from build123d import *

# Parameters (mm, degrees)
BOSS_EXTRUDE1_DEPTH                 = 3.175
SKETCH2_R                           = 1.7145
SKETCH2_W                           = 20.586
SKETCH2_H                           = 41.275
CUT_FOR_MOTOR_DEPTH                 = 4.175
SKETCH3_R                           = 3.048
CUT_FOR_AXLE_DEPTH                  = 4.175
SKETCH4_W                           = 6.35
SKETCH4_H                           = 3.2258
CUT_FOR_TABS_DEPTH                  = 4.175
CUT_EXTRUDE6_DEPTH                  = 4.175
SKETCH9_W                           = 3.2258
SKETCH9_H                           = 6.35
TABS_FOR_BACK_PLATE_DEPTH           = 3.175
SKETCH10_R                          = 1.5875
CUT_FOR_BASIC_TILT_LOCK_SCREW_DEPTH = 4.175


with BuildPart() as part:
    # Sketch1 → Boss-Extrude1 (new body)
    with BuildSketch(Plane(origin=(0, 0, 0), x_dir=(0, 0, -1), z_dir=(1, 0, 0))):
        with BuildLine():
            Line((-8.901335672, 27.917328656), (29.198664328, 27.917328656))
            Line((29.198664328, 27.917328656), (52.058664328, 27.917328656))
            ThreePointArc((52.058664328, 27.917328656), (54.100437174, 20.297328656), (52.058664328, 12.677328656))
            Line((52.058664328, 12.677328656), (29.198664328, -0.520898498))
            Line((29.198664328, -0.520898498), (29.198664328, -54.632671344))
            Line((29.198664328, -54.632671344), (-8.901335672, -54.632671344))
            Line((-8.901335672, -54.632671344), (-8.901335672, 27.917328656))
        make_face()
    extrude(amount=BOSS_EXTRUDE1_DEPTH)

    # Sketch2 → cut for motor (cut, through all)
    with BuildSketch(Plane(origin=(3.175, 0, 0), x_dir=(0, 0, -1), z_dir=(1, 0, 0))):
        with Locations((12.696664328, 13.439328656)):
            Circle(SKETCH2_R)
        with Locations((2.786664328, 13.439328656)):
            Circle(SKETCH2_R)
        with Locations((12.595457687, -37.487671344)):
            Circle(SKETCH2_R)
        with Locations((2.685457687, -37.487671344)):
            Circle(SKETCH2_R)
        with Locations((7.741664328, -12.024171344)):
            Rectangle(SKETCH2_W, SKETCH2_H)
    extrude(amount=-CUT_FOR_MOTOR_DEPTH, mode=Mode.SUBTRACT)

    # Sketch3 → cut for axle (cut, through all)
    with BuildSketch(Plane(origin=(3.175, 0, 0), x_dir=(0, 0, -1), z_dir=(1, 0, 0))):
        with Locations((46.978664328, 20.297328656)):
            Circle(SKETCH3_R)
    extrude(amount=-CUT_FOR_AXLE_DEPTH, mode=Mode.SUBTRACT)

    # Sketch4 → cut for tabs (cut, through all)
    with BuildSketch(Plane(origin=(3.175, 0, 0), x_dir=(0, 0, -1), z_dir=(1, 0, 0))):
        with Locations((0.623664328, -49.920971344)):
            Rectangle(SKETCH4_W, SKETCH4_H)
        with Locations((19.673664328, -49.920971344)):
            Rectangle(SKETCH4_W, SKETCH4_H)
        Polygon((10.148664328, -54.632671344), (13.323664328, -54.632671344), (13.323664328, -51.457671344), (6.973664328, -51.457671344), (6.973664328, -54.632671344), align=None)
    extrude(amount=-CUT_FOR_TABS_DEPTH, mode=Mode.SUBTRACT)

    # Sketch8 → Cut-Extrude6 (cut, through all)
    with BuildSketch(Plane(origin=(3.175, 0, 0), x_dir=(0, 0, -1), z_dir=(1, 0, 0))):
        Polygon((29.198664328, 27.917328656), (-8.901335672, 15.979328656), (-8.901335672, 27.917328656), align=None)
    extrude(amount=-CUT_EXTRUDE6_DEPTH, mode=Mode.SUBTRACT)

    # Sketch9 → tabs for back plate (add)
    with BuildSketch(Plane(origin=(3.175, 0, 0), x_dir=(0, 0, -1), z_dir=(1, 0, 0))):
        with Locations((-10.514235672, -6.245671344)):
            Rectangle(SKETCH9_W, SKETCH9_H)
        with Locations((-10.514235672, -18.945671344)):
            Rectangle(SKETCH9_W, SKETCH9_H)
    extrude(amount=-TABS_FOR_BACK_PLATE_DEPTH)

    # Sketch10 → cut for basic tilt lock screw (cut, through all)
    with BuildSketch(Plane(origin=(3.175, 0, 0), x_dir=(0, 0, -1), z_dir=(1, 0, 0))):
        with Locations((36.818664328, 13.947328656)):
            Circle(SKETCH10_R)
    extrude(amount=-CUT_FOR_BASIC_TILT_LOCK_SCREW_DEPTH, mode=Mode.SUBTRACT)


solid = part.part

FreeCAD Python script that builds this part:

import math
import FreeCAD as App
import Part
import Sketcher
Q = App.Units.Quantity

doc = App.newDocument("Part")
body = doc.addObject("PartDesign::Body", "Body")

sketch1 = doc.addObject("Sketcher::SketchObject", "Sketch")
body.addObject(sketch1)
sketch1.AttachmentSupport = (doc.YZ_Plane, [""])
sketch1.MapMode = "FlatFace"
sketch1.addGeometry([
    Part.LineSegment(App.Vector(28, -52, 0), App.Vector(28, 9, 0)),
    Part.LineSegment(App.Vector(28, 9, 0), App.Vector(-55, 9, 0)),
    Part.LineSegment(App.Vector(-55, 9, 0), App.Vector(-55, -29, 0)),
    Part.LineSegment(App.Vector(-55, -29, 0), App.Vector(-1, -29, 0)),
    Part.LineSegment(App.Vector(-1, -29, 0), App.Vector(13, -52, 0)),
    Part.ArcOfCircle(Part.Circle(App.Vector(20, -39, 0), App.Vector(0, 0, 1), 15), math.radians(-120), math.radians(-60)),
], False)
sketch1.addConstraint([
    Sketcher.Constraint("Coincident", 0, 2, 1, 1),
    Sketcher.Constraint("Coincident", 1, 2, 2, 1),
    Sketcher.Constraint("Coincident", 2, 2, 3, 1),
    Sketcher.Constraint("Coincident", 3, 2, 4, 1),
    Sketcher.Constraint("Coincident", 4, 2, 5, 1),
    Sketcher.Constraint("Coincident", 5, 2, 0, 1),
    Sketcher.Constraint("Vertical", 0),
    Sketcher.Constraint("Horizontal", 1),
    Sketcher.Constraint("Vertical", 2),
    Sketcher.Constraint("Horizontal", 3),
    Sketcher.Constraint("Horizontal", 4, 2, 5, 2),
    Sketcher.Constraint("Radius", 5, Q("0.6 in")),
    Sketcher.Constraint("DistanceY", 0, 1, 0, 2, Q("2.4 in")),
    Sketcher.Constraint("DistanceY", 2, 2, 2, 1, Q("1.5 in")),
    Sketcher.Constraint("Angle", 4, Q("-60 deg")),
    Sketcher.Constraint("DistanceX", 1, 2, 1, 1, Q("3.25 in")),
    Sketcher.Constraint("DistanceX", 5, 3, 0, 2, Q("0.3 in")),
    Sketcher.Constraint("DistanceX", 3, 2, -1, 1, Q("0.520898 mm")),
    Sketcher.Constraint("DistanceY", 5, 3, -1, 1, Q("38.860437 mm")),
])
pad1 = doc.addObject("PartDesign::Pad", "Pad")
body.addObject(pad1)
pad1.Profile = sketch1
pad1.Length = Q("0.125 in")

sketch2 = doc.addObject("Sketcher::SketchObject", "Sketch001")
body.addObject(sketch2)
sketch2.AttachmentSupport = (doc.YZ_Plane, [""])
sketch2.MapMode = "FlatFace"
sketch2.AttachmentOffset = App.Placement(App.Vector(0, 0, 0.125 * 25.4), App.Rotation())
sketch2.addGeometry([
    Part.Circle(App.Vector(13.4, -12.7, 0), App.Vector(0, 0, 1), 1.7),
    Part.Circle(App.Vector(13.4, -2.8, 0), App.Vector(0, 0, 1), 1.7),
    Part.Circle(App.Vector(-37.5, -12.6, 0), App.Vector(0, 0, 1), 1.7),
    Part.Circle(App.Vector(-37.5, -2.7, 0), App.Vector(0, 0, 1), 1.7),
    Part.LineSegment(App.Vector(8.6, 2.6, 0), App.Vector(-32.7, 2.6, 0)),
    Part.LineSegment(App.Vector(-32.7, 2.6, 0), App.Vector(-32.7, -18, 0)),
    Part.LineSegment(App.Vector(-32.7, -18, 0), App.Vector(8.6, -18, 0)),
    Part.LineSegment(App.Vector(8.6, -18, 0), App.Vector(8.6, 2.6, 0)),
], False)
sketch2.addConstraint([
    Sketcher.Constraint("Coincident", 4, 2, 5, 1),
    Sketcher.Constraint("Coincident", 5, 2, 6, 1),
    Sketcher.Constraint("Coincident", 6, 2, 7, 1),
    Sketcher.Constraint("Coincident", 7, 2, 4, 1),
    Sketcher.Constraint("Horizontal", 4),
    Sketcher.Constraint("Vertical", 5),
    Sketcher.Constraint("Horizontal", 6),
    Sketcher.Constraint("Vertical", 7),
    Sketcher.Constraint("Equal", 0, 1),
    Sketcher.Constraint("Equal", 1, 2),
    Sketcher.Constraint("Equal", 2, 3),
    Sketcher.Constraint("Vertical", 0, 3, 1, 3),
    Sketcher.Constraint("Vertical", 2, 3, 3, 3),
    Sketcher.Constraint("Diameter", 0, Q("0.135 in")),
    Sketcher.Constraint("DistanceX", 4, 2, 4, 1, Q("1.625 in")),
    Sketcher.Constraint("DistanceX", 3, 3, 4, 2, Q("0.19 in")),
    Sketcher.Constraint("DistanceX", 6, 2, 0, 3, Q("0.19 in")),
    Sketcher.Constraint("DistanceY", 5, 2, 5, 1, Q("20.586 mm")),
    Sketcher.Constraint("DistanceY", 0, 3, 1, 3, Q("9.91 mm")),
    Sketcher.Constraint("DistanceY", 2, 3, 3, 3, Q("9.91 mm")),
    Sketcher.Constraint("DistanceY", 1, 3, 4, 2, Q("5.338 mm")),
    Sketcher.Constraint("DistanceX", -1, 1, 0, 3, Q("13.439329 mm")),
    Sketcher.Constraint("DistanceY", 0, 3, -1, 1, Q("12.696664 mm")),
    Sketcher.Constraint("DistanceY", 2, 3, -1, 1, Q("12.595458 mm")),
])
pocket1 = doc.addObject("PartDesign::Pocket", "Pocket")
body.addObject(pocket1)
pocket1.Profile = sketch2
pocket1.Type = "ThroughAll"

sketch3 = doc.addObject("Sketcher::SketchObject", "Sketch002")
body.addObject(sketch3)
sketch3.AttachmentSupport = (doc.YZ_Plane, [""])
sketch3.MapMode = "FlatFace"
sketch3.AttachmentOffset = App.Placement(App.Vector(0, 0, 0.125 * 25.4), App.Rotation())
sketch3.addGeometry(Part.Circle(App.Vector(20.3, -47, 0), App.Vector(0, 0, 1), 3), False)
sketch3.addConstraint([
    Sketcher.Constraint("Diameter", 0, Q("0.24 in")),
    Sketcher.Constraint("DistanceX", -1, 1, 0, 3, Q("20.297329 mm")),
    Sketcher.Constraint("DistanceY", 0, 3, -1, 1, Q("46.978664 mm")),
])
pocket2 = doc.addObject("PartDesign::Pocket", "Pocket001")
body.addObject(pocket2)
pocket2.Profile = sketch3
pocket2.Type = "ThroughAll"

sketch4 = doc.addObject("Sketcher::SketchObject", "Sketch003")
body.addObject(sketch4)
sketch4.AttachmentSupport = (doc.YZ_Plane, [""])
sketch4.MapMode = "FlatFace"
sketch4.AttachmentOffset = App.Placement(App.Vector(0, 0, 0.125 * 25.4), App.Rotation())
sketch4.addGeometry([
    Part.LineSegment(App.Vector(-48.3, 2.6, 0), App.Vector(-51.5, 2.6, 0)),
    Part.LineSegment(App.Vector(-51.5, 2.6, 0), App.Vector(-51.5, -3.8, 0)),
    Part.LineSegment(App.Vector(-51.5, -3.8, 0), App.Vector(-48.3, -3.8, 0)),
    Part.LineSegment(App.Vector(-48.3, -3.8, 0), App.Vector(-48.3, 2.6, 0)),
    Part.LineSegment(App.Vector(-48.3, -16.5, 0), App.Vector(-51.5, -16.5, 0)),
    Part.LineSegment(App.Vector(-51.5, -16.5, 0), App.Vector(-51.5, -22.8, 0)),
    Part.LineSegment(App.Vector(-51.5, -22.8, 0), App.Vector(-48.3, -22.8, 0)),
    Part.LineSegment(App.Vector(-48.3, -22.8, 0), App.Vector(-48.3, -16.5, 0)),
    Part.LineSegment(App.Vector(-54.6, -13.3, 0), App.Vector(-51.5, -13.3, 0)),
    Part.LineSegment(App.Vector(-51.5, -13.3, 0), App.Vector(-51.5, -7, 0)),
    Part.LineSegment(App.Vector(-51.5, -7, 0), App.Vector(-54.6, -7, 0)),
    Part.LineSegment(App.Vector(-54.6, -7, 0), App.Vector(-54.6, -13.3, 0)),
], False)
sketch4.addConstraint([
    Sketcher.Constraint("Coincident", 0, 2, 1, 1),
    Sketcher.Constraint("Coincident", 1, 2, 2, 1),
    Sketcher.Constraint("Coincident", 2, 2, 3, 1),
    Sketcher.Constraint("Coincident", 3, 2, 0, 1),
    Sketcher.Constraint("Coincident", 4, 2, 5, 1),
    Sketcher.Constraint("Coincident", 5, 2, 6, 1),
    Sketcher.Constraint("Coincident", 6, 2, 7, 1),
    Sketcher.Constraint("Coincident", 7, 2, 4, 1),
    Sketcher.Constraint("Coincident", 8, 2, 9, 1),
    Sketcher.Constraint("Coincident", 9, 2, 10, 1),
    Sketcher.Constraint("Coincident", 10, 2, 11, 1),
    Sketcher.Constraint("Coincident", 11, 2, 8, 1),
    Sketcher.Constraint("Horizontal", 0),
    Sketcher.Constraint("Vertical", 1),
    Sketcher.Constraint("Horizontal", 2),
    Sketcher.Constraint("Vertical", 3),
    Sketcher.Constraint("Horizontal", 4),
    Sketcher.Constraint("Vertical", 5),
    Sketcher.Constraint("Horizontal", 6),
    Sketcher.Constraint("Vertical", 7),
    Sketcher.Constraint("Horizontal", 8),
    Sketcher.Constraint("Vertical", 9),
    Sketcher.Constraint("Horizontal", 10),
    Sketcher.Constraint("Vertical", 11),
    Sketcher.Constraint("Vertical", 1, 2, 4, 2),
    Sketcher.Constraint("Vertical", 3, 2, 6, 2),
    Sketcher.Constraint("Equal", 3, 5),
    Sketcher.Constraint("Equal", 7, 9),
    Sketcher.Constraint("DistanceY", 5, 2, 0, 2, Q("1 in")),
    Sketcher.Constraint("DistanceY", 1, 2, 1, 1, Q("0.25 in")),
    Sketcher.Constraint("DistanceX", 0, 2, 0, 1, Q("0.127 in")),
    Sketcher.Constraint("DistanceX", 8, 1, 8, 2, Q("0.125 in")),
    Sketcher.Constraint("DistanceX", 4, 2, 8, 2, Q("0.003 in")),
    Sketcher.Constraint("DistanceY", 4, 2, 8, 2, Q("0.125 in")),
    Sketcher.Constraint("DistanceX", 0, 2, -1, 1, Q("51.533871 mm")),
    Sketcher.Constraint("DistanceY", -1, 1, 0, 2, Q("2.551336 mm")),
])
pocket3 = doc.addObject("PartDesign::Pocket", "Pocket002")
body.addObject(pocket3)
pocket3.Profile = sketch4
pocket3.Type = "ThroughAll"

sketch5 = doc.addObject("Sketcher::SketchObject", "Sketch004")
body.addObject(sketch5)
sketch5.AttachmentSupport = (doc.YZ_Plane, [""])
sketch5.MapMode = "FlatFace"
sketch5.AttachmentOffset = App.Placement(App.Vector(0, 0, 0.125 * 25.4), App.Rotation())
sketch5.addGeometry([
    Part.LineSegment(App.Vector(16, 9, 0), App.Vector(28, -29, 0)),
    Part.LineSegment(App.Vector(28, -29, 0), App.Vector(28, 9, 0)),
    Part.LineSegment(App.Vector(28, 9, 0), App.Vector(16, 9, 0)),
], False)
sketch5.addConstraint([
    Sketcher.Constraint("Coincident", 0, 2, 1, 1),
    Sketcher.Constraint("Coincident", 1, 2, 2, 1),
    Sketcher.Constraint("Coincident", 2, 2, 0, 1),
    Sketcher.Constraint("Vertical", 1),
    Sketcher.Constraint("Horizontal", 2),
    Sketcher.Constraint("DistanceY", 1, 1, 1, 2, Q("1.5 in")),
    Sketcher.Constraint("DistanceX", 2, 2, 2, 1, Q("0.47 in")),
    Sketcher.Constraint("DistanceX", -1, 1, 0, 2, Q("27.917329 mm")),
    Sketcher.Constraint("DistanceY", 0, 2, -1, 1, Q("29.198664 mm")),
])
pocket4 = doc.addObject("PartDesign::Pocket", "Pocket003")
body.addObject(pocket4)
pocket4.Profile = sketch5
pocket4.Type = "ThroughAll"

sketch6 = doc.addObject("Sketcher::SketchObject", "Sketch005")
body.addObject(sketch6)
sketch6.AttachmentSupport = (doc.YZ_Plane, [""])
sketch6.MapMode = "FlatFace"
sketch6.AttachmentOffset = App.Placement(App.Vector(0, 0, 0.125 * 25.4), App.Rotation())
sketch6.addGeometry([
    Part.LineSegment(App.Vector(-3.1, 12.1, 0), App.Vector(-9.4, 12.1, 0)),
    Part.LineSegment(App.Vector(-9.4, 12.1, 0), App.Vector(-9.4, 8.9, 0)),
    Part.LineSegment(App.Vector(-9.4, 8.9, 0), App.Vector(-3.1, 8.9, 0)),
    Part.LineSegment(App.Vector(-3.1, 8.9, 0), App.Vector(-3.1, 12.1, 0)),
    Part.LineSegment(App.Vector(-15.8, 12.1, 0), App.Vector(-22.1, 12.1, 0)),
    Part.LineSegment(App.Vector(-22.1, 12.1, 0), App.Vector(-22.1, 8.9, 0)),
    Part.LineSegment(App.Vector(-22.1, 8.9, 0), App.Vector(-15.8, 8.9, 0)),
    Part.LineSegment(App.Vector(-15.8, 8.9, 0), App.Vector(-15.8, 12.1, 0)),
], False)
sketch6.addConstraint([
    Sketcher.Constraint("Coincident", 0, 2, 1, 1),
    Sketcher.Constraint("Coincident", 1, 2, 2, 1),
    Sketcher.Constraint("Coincident", 2, 2, 3, 1),
    Sketcher.Constraint("Coincident", 3, 2, 0, 1),
    Sketcher.Constraint("Coincident", 4, 2, 5, 1),
    Sketcher.Constraint("Coincident", 5, 2, 6, 1),
    Sketcher.Constraint("Coincident", 6, 2, 7, 1),
    Sketcher.Constraint("Coincident", 7, 2, 4, 1),
    Sketcher.Constraint("Horizontal", 0),
    Sketcher.Constraint("Vertical", 1),
    Sketcher.Constraint("Horizontal", 2),
    Sketcher.Constraint("Vertical", 3),
    Sketcher.Constraint("Horizontal", 4),
    Sketcher.Constraint("Vertical", 5),
    Sketcher.Constraint("Horizontal", 6),
    Sketcher.Constraint("Vertical", 7),
    Sketcher.Constraint("Horizontal", 3, 2, 4, 2),
    Sketcher.Constraint("Horizontal", 2, 2, 5, 2),
    Sketcher.Constraint("Equal", 2, 4),
    Sketcher.Constraint("DistanceX", 0, 2, 0, 1, Q("0.25 in")),
    Sketcher.Constraint("DistanceX", 4, 2, 0, 2, Q("0.5 in")),
    Sketcher.Constraint("DistanceY", 1, 2, 1, 1, Q("0.127 in")),
    Sketcher.Constraint("DistanceX", 0, 2, -1, 1, Q("9.420671 mm")),
    Sketcher.Constraint("DistanceY", -1, 1, 0, 2, Q("12.127136 mm")),
])
pad2 = doc.addObject("PartDesign::Pad", "Pad001")
body.addObject(pad2)
pad2.Profile = sketch6
pad2.Length = Q("0.125 in")
pad2.Reversed = True

sketch7 = doc.addObject("Sketcher::SketchObject", "Sketch006")
body.addObject(sketch7)
sketch7.AttachmentSupport = (doc.YZ_Plane, [""])
sketch7.MapMode = "FlatFace"
sketch7.AttachmentOffset = App.Placement(App.Vector(0, 0, 0.125 * 25.4), App.Rotation())
sketch7.addGeometry(Part.Circle(App.Vector(13.9, -36.8, 0), App.Vector(0, 0, 1), 1.6), False)
sketch7.addConstraint([
    Sketcher.Constraint("Diameter", 0, Q("0.125 in")),
    Sketcher.Constraint("DistanceX", -1, 1, 0, 3, Q("13.947329 mm")),
    Sketcher.Constraint("DistanceY", 0, 3, -1, 1, Q("36.818664 mm")),
])
pocket5 = doc.addObject("PartDesign::Pocket", "Pocket004")
body.addObject(pocket5)
pocket5.Profile = sketch7
pocket5.Type = "ThroughAll"

doc.recompute()
